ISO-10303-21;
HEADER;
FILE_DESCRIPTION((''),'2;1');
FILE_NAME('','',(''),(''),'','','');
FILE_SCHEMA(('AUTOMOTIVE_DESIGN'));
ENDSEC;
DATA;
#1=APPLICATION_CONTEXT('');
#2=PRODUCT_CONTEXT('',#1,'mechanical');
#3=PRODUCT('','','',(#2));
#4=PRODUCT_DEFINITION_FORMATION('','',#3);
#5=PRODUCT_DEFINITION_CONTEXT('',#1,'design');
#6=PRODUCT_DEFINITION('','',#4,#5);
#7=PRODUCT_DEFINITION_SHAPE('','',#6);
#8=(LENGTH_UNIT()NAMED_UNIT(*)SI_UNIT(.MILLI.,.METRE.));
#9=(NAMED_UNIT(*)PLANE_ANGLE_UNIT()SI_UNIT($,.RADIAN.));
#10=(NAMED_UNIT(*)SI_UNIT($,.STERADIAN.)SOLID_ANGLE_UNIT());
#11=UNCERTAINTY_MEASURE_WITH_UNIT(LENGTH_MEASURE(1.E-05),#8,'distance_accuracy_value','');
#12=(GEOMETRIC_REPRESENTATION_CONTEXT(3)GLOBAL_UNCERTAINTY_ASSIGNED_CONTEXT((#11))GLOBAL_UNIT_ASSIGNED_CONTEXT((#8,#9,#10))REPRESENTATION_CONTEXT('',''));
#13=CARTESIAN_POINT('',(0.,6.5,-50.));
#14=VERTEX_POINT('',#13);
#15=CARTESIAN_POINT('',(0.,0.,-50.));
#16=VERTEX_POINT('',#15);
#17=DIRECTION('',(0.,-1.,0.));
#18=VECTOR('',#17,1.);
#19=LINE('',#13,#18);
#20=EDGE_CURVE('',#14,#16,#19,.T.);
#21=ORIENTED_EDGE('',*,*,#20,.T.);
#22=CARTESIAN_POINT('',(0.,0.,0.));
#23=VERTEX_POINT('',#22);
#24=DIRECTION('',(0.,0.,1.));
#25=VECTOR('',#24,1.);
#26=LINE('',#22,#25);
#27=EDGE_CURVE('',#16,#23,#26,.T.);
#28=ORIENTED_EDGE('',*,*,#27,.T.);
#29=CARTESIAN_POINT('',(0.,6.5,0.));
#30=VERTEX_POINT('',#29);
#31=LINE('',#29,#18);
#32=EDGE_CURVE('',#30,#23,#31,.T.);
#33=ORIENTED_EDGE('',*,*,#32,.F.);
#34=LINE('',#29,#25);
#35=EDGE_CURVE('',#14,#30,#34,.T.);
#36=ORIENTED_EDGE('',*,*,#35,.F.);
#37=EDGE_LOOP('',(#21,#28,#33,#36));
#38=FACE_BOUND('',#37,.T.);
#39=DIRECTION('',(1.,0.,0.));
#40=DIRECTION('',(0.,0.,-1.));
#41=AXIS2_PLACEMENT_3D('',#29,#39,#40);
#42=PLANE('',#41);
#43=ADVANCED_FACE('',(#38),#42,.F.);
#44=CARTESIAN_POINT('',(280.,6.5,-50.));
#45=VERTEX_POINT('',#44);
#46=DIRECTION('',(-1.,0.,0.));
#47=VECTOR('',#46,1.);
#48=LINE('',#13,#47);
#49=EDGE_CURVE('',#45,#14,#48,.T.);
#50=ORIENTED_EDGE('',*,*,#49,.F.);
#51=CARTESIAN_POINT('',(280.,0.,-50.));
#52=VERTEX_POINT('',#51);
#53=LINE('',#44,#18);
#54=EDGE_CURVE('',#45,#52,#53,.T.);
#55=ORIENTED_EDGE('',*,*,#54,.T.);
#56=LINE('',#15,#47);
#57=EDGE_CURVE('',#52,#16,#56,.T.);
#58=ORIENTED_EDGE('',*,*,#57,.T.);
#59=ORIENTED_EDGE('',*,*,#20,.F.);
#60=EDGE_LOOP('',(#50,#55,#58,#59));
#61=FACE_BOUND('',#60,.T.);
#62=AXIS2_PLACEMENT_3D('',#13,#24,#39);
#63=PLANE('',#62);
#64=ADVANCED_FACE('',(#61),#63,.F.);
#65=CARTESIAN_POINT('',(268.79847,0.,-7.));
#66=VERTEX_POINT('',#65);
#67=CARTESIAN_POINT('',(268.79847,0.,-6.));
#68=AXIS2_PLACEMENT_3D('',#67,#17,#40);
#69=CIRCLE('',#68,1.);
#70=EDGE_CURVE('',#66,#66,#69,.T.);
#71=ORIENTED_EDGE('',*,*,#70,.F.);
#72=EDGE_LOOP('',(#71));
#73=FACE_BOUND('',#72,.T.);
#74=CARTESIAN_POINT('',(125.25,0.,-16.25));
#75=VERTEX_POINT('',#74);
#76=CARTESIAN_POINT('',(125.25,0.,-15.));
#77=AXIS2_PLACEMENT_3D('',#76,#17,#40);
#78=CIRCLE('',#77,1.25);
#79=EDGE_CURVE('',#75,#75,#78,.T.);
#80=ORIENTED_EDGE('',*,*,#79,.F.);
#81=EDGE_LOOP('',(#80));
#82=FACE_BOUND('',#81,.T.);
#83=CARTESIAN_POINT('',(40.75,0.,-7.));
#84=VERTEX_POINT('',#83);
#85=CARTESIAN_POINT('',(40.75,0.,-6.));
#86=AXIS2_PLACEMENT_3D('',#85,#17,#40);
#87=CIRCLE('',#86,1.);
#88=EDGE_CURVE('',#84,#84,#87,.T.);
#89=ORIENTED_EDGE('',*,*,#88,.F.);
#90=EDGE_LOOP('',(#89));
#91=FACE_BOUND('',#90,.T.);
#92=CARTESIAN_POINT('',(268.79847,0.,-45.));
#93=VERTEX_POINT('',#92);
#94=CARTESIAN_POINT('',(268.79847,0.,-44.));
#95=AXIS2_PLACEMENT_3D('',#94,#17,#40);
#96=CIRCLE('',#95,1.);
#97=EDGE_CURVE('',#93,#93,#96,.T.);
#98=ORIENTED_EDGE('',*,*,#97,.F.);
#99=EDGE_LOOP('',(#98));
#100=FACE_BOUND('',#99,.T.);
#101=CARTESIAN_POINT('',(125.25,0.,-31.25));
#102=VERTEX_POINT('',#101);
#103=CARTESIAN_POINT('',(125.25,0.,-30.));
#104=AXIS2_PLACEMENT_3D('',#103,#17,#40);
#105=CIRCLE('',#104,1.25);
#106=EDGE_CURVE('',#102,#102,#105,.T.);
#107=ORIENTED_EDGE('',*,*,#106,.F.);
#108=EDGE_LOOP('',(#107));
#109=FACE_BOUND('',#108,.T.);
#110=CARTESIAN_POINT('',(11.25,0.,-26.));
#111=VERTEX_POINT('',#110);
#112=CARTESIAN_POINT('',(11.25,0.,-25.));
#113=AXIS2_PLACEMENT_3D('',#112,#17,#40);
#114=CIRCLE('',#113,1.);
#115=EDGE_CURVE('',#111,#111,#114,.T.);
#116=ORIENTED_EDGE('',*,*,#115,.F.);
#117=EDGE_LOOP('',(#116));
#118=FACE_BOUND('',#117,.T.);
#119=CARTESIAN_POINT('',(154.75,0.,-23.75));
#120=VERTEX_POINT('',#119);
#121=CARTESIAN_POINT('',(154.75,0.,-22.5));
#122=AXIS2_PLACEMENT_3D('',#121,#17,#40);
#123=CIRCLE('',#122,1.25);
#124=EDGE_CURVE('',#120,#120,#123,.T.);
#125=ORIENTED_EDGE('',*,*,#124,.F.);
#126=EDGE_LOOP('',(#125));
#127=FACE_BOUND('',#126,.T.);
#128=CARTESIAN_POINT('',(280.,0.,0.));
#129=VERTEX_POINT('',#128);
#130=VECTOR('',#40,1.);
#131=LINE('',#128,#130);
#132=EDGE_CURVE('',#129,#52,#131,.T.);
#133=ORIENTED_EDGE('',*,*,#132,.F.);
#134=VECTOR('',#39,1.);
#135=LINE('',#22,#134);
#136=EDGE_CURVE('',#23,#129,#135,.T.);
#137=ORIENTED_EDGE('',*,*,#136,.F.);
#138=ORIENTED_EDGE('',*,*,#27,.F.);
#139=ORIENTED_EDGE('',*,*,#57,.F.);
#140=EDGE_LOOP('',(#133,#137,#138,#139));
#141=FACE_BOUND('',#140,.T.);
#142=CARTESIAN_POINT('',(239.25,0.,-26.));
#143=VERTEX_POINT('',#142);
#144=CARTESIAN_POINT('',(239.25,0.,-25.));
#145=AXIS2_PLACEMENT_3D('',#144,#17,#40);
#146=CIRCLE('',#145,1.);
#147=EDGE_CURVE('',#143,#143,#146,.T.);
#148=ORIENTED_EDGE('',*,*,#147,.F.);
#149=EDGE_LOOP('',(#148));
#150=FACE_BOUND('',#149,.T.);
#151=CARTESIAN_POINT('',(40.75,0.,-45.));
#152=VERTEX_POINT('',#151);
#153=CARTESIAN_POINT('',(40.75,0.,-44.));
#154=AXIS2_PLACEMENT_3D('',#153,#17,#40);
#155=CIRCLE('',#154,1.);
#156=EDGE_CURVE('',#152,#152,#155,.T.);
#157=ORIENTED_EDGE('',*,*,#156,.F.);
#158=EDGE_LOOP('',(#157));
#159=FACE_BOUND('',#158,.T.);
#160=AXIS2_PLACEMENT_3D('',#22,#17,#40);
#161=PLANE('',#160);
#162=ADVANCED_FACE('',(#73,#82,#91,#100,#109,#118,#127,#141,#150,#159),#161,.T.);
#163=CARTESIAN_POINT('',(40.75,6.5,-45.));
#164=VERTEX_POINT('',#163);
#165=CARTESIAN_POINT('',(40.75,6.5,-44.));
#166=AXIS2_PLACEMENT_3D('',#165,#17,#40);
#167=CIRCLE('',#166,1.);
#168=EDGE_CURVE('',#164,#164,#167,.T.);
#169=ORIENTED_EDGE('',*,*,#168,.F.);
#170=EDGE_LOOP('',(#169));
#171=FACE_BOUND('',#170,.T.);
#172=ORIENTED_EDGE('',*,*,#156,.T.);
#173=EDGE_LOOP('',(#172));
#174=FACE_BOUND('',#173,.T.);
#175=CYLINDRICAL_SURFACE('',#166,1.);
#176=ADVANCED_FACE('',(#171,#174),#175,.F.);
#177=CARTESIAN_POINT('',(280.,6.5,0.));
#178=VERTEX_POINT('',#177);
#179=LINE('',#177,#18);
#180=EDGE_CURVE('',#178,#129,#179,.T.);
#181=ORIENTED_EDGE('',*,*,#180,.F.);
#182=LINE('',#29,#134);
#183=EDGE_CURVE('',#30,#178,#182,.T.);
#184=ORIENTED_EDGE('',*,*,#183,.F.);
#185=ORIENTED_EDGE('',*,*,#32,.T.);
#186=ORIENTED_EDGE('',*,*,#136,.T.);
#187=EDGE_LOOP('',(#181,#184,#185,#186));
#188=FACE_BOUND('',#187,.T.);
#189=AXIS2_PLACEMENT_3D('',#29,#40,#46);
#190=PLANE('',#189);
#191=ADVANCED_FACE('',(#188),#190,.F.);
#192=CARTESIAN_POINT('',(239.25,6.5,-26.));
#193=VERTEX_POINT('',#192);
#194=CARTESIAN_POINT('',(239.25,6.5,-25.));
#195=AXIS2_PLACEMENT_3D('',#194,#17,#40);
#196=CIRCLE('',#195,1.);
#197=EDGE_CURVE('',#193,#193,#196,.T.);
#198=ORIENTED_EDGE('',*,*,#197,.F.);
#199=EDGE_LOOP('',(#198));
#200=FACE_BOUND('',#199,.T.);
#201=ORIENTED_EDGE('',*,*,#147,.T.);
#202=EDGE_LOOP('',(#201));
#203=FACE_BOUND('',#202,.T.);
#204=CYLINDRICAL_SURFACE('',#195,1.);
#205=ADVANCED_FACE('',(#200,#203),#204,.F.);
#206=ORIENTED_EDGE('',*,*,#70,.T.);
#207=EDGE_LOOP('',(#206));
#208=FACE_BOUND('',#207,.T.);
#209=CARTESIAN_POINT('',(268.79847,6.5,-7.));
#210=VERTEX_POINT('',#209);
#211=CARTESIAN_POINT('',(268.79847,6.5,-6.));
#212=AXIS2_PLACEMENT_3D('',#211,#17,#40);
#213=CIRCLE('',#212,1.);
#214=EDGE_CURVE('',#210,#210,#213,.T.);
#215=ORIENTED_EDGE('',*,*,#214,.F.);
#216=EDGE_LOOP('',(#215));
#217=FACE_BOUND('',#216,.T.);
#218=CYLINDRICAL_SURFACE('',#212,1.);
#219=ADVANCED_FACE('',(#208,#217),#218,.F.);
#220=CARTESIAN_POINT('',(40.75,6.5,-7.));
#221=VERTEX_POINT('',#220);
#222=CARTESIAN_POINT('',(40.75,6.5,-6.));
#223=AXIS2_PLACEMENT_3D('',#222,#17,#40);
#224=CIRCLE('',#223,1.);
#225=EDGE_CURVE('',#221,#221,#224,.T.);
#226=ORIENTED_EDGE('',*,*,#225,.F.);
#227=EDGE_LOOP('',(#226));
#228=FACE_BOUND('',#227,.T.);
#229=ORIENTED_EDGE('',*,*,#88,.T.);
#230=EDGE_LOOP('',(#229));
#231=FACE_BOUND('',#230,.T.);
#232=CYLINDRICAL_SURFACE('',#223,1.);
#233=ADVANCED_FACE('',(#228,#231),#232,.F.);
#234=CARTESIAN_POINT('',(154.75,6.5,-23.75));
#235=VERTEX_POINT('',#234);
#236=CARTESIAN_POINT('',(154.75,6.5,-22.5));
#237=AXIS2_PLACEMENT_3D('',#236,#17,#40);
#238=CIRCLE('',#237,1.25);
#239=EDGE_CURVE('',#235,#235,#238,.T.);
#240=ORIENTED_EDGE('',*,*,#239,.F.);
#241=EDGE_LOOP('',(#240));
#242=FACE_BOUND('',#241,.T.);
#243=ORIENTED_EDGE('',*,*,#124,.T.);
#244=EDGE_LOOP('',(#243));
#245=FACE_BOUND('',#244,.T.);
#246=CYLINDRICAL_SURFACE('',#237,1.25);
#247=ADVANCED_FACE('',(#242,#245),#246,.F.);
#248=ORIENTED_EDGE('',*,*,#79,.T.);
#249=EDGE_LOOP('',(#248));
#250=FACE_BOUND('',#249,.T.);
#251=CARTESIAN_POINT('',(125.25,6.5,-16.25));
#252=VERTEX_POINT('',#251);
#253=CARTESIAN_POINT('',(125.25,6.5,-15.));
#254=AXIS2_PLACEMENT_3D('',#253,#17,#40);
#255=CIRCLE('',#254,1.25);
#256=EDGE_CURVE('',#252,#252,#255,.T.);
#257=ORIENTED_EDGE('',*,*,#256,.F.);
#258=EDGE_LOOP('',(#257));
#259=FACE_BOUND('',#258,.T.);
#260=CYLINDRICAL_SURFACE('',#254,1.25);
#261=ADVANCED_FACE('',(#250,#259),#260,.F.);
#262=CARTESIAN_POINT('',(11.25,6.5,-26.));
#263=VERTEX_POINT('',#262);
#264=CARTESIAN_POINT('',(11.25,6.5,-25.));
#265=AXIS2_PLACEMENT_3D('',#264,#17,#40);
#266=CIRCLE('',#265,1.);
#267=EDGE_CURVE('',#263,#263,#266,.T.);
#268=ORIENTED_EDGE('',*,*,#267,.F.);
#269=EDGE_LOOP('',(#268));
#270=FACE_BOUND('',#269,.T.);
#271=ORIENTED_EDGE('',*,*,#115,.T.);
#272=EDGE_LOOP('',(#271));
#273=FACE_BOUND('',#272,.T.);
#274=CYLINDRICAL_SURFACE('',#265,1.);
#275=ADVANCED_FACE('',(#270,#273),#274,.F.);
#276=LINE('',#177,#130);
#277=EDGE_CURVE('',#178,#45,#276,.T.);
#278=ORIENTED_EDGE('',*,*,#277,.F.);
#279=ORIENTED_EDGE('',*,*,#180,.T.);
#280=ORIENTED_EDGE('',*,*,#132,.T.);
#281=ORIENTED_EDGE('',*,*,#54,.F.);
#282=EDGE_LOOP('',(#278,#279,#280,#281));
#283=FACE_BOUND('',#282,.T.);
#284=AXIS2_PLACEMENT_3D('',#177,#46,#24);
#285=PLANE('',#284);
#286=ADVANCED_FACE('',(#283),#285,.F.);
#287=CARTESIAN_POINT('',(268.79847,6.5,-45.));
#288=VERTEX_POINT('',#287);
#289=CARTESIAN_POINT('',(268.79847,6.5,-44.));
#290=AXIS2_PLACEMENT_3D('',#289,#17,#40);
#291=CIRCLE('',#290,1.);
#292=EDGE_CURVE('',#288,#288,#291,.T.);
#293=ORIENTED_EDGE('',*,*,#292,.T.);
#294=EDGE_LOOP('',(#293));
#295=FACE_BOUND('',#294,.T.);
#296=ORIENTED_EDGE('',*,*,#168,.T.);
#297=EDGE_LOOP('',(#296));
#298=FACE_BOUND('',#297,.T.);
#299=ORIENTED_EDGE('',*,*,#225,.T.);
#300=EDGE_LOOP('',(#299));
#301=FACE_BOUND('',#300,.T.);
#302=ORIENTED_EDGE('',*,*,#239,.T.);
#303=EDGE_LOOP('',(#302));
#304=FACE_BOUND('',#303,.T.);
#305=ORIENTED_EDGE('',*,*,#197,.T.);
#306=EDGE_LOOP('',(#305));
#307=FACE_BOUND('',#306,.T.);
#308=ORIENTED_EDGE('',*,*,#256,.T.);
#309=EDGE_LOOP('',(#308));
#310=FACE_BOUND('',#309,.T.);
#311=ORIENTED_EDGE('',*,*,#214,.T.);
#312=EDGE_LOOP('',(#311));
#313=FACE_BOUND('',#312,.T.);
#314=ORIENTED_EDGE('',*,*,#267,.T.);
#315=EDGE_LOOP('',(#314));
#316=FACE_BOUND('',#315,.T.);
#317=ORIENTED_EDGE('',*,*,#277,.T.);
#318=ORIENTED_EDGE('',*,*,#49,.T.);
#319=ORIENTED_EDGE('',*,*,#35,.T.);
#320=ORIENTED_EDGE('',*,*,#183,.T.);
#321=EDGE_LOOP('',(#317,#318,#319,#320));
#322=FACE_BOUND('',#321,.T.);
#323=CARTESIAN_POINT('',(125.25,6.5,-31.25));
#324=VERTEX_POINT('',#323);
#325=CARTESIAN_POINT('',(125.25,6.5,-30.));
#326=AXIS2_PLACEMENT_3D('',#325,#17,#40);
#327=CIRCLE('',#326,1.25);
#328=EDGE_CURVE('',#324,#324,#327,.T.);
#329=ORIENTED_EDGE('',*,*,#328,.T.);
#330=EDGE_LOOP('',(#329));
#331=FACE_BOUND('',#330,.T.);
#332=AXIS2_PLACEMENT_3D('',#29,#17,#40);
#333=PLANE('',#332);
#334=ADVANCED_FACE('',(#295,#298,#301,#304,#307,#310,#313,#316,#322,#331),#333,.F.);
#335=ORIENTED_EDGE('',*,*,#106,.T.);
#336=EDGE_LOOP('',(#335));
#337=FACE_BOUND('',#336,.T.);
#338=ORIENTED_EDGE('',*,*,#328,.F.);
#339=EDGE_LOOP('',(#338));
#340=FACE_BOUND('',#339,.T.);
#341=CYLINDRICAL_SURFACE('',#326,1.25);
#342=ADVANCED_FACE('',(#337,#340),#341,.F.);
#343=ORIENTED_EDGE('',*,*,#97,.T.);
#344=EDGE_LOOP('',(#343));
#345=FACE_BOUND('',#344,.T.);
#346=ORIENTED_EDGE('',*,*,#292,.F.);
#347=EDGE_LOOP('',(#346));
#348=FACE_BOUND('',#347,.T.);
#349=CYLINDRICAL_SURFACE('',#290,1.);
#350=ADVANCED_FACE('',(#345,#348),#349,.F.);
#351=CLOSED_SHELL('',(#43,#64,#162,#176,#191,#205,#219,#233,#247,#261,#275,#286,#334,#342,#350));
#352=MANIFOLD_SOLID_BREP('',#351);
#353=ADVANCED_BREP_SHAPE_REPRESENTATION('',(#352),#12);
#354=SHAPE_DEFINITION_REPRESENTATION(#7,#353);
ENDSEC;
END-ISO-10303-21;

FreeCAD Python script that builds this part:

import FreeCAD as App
import Part
import Sketcher

doc = App.newDocument("Part")
params = doc.addObject("Spreadsheet::Sheet", "Params")
for row, (alias, value) in enumerate([
    ("sketch1_width", "280 mm"),
    ("sketch1_height", "50 mm"),
    ("pad1_length", "6.5 mm"),
    ("sketch2_diameter", "2.5 mm"),
    ("sketch3_diameter", "2 mm"),
], start=1):
    params.set(f"A{row}", alias)
    params.set(f"B{row}", "=" + value)
    params.setAlias(f"B{row}", alias)

body = doc.addObject("PartDesign::Body", "Body")

sketch1 = body.newObject("Sketcher::SketchObject", "Sketch")
sketch1.AttachmentSupport = (doc.getObject("XZ_Plane"), [""])
sketch1.MapMode = "FlatFace"
sketch1.addGeometry([
    Part.LineSegment(App.Vector(0, -50, 0), App.Vector(0, 0, 0)),
    Part.LineSegment(App.Vector(0, 0, 0), App.Vector(280, 0, 0)),
    Part.LineSegment(App.Vector(280, 0, 0), App.Vector(280, -50, 0)),
    Part.LineSegment(App.Vector(280, -50, 0), App.Vector(0, -50, 0)),
], False)
sketch1.addConstraint([
    Sketcher.Constraint("Coincident", 0, 2, 1, 1),
    Sketcher.Constraint("Coincident", 1, 2, 2, 1),
    Sketcher.Constraint("Coincident", 2, 2, 3, 1),
    Sketcher.Constraint("Coincident", 3, 2, 0, 1),
    Sketcher.Constraint("Vertical", 0),
    Sketcher.Constraint("Horizontal", 1),
    Sketcher.Constraint("Vertical", 2),
    Sketcher.Constraint("Horizontal", 3),
    Sketcher.Constraint("Coincident", 0, 2, -1, 1),
    Sketcher.Constraint("DistanceX", 1, 1, 1, 2, 280.0),
    Sketcher.Constraint("DistanceY", 0, 1, 0, 2, 50.0),
])
sketch1.setExpression("Constraints[9]", "Params.sketch1_width")
sketch1.setExpression("Constraints[10]", "Params.sketch1_height")
pad1 = body.newObject("PartDesign::Pad", "Pad")
pad1.Profile = sketch1
pad1.setExpression("Length", "Params.pad1_length")
pad1.Reversed = True

sketch2 = body.newObject("Sketcher::SketchObject", "Sketch001")
sketch2.AttachmentSupport = (doc.getObject("XZ_Plane"), [""])
sketch2.MapMode = "FlatFace"
sketch2.addGeometry([
    Part.Circle(App.Vector(125.2, -30, 0), App.Vector(0, 0, 1), 1.2),
    Part.Circle(App.Vector(125.2, -15, 0), App.Vector(0, 0, 1), 1.2),
    Part.Circle(App.Vector(154.8, -22.5, 0), App.Vector(0, 0, 1), 1.2),
], False)
sketch2.addConstraint([
    Sketcher.Constraint("Equal", 0, 1),
    Sketcher.Constraint("Equal", 1, 2),
    Sketcher.Constraint("Vertical", 0, 3, 1, 3),
    Sketcher.Constraint("Diameter", 0, 2.5),
    Sketcher.Constraint("DistanceY", 0, 3, -1, 1, 30.0),
    Sketcher.Constraint("DistanceY", 1, 3, -1, 1, 15.0),
    Sketcher.Constraint("DistanceY", 2, 3, -1, 1, 22.5),
    Sketcher.Constraint("DistanceX", 0, 3, 2, 3, 29.5),
    Sketcher.Constraint("DistanceX", -1, 1, 0, 3, 125.25),
])
sketch2.setExpression("Constraints[3]", "Params.sketch2_diameter")
pocket1 = body.newObject("PartDesign::Pocket", "Pocket")
pocket1.Profile = sketch2
pocket1.Type = "ThroughAll"

sketch3 = body.newObject("Sketcher::SketchObject", "Sketch002")
sketch3.AttachmentSupport = (doc.getObject("XZ_Plane"), [""])
sketch3.MapMode = "FlatFace"
sketch3.addGeometry([
    Part.Circle(App.Vector(268.8, -44, 0), App.Vector(0, 0, 1), 1),
    Part.Circle(App.Vector(268.8, -6, 0), App.Vector(0, 0, 1), 1),
    Part.Circle(App.Vector(239.2, -25, 0), App.Vector(0, 0, 1), 1),
    Part.Circle(App.Vector(11.2, -25, 0), App.Vector(0, 0, 1), 1),
    Part.Circle(App.Vector(40.8, -6, 0), App.Vector(0, 0, 1), 1),
    Part.Circle(App.Vector(40.8, -44, 0), App.Vector(0, 0, 1), 1),
], False)
sketch3.addConstraint([
    Sketcher.Constraint("Equal", 0, 1),
    Sketcher.Constraint("Equal", 1, 2),
    Sketcher.Constraint("Equal", 2, 3),
    Sketcher.Constraint("Equal", 3, 4),
    Sketcher.Constraint("Equal", 4, 5),
    Sketcher.Constraint("Horizontal", 2, 3, 3, 3),
    Sketcher.Constraint("Horizontal", 1, 3, 4, 3),
    Sketcher.Constraint("Horizontal", 0, 3, 5, 3),
    Sketcher.Constraint("Vertical", 0, 3, 1, 3),
    Sketcher.Constraint("Vertical", 4, 3, 5, 3),
    Sketcher.Constraint("Diameter", 0, 2.0),
    Sketcher.Constraint("DistanceY", 0, 3, -1, 1, 44.0),
    Sketcher.Constraint("DistanceY", 1, 3, -1, 1, 6.0),
    Sketcher.Constraint("DistanceY", 2, 3, -1, 1, 25.0),
    Sketcher.Constraint("DistanceX", 3, 3, 2, 3, 228.0),
    Sketcher.Constraint("DistanceX", 3, 3, 4, 3, 29.5),
    Sketcher.Constraint("DistanceX", -1, 1, 2, 3, 239.25),
    Sketcher.Constraint("DistanceX", -1, 1, 0, 3, 268.79847),
])
sketch3.setExpression("Constraints[10]", "Params.sketch3_diameter")
pocket2 = body.newObject("PartDesign::Pocket", "Pocket001")
pocket2.Profile = sketch3
pocket2.Type = "ThroughAll"

doc.recompute()
